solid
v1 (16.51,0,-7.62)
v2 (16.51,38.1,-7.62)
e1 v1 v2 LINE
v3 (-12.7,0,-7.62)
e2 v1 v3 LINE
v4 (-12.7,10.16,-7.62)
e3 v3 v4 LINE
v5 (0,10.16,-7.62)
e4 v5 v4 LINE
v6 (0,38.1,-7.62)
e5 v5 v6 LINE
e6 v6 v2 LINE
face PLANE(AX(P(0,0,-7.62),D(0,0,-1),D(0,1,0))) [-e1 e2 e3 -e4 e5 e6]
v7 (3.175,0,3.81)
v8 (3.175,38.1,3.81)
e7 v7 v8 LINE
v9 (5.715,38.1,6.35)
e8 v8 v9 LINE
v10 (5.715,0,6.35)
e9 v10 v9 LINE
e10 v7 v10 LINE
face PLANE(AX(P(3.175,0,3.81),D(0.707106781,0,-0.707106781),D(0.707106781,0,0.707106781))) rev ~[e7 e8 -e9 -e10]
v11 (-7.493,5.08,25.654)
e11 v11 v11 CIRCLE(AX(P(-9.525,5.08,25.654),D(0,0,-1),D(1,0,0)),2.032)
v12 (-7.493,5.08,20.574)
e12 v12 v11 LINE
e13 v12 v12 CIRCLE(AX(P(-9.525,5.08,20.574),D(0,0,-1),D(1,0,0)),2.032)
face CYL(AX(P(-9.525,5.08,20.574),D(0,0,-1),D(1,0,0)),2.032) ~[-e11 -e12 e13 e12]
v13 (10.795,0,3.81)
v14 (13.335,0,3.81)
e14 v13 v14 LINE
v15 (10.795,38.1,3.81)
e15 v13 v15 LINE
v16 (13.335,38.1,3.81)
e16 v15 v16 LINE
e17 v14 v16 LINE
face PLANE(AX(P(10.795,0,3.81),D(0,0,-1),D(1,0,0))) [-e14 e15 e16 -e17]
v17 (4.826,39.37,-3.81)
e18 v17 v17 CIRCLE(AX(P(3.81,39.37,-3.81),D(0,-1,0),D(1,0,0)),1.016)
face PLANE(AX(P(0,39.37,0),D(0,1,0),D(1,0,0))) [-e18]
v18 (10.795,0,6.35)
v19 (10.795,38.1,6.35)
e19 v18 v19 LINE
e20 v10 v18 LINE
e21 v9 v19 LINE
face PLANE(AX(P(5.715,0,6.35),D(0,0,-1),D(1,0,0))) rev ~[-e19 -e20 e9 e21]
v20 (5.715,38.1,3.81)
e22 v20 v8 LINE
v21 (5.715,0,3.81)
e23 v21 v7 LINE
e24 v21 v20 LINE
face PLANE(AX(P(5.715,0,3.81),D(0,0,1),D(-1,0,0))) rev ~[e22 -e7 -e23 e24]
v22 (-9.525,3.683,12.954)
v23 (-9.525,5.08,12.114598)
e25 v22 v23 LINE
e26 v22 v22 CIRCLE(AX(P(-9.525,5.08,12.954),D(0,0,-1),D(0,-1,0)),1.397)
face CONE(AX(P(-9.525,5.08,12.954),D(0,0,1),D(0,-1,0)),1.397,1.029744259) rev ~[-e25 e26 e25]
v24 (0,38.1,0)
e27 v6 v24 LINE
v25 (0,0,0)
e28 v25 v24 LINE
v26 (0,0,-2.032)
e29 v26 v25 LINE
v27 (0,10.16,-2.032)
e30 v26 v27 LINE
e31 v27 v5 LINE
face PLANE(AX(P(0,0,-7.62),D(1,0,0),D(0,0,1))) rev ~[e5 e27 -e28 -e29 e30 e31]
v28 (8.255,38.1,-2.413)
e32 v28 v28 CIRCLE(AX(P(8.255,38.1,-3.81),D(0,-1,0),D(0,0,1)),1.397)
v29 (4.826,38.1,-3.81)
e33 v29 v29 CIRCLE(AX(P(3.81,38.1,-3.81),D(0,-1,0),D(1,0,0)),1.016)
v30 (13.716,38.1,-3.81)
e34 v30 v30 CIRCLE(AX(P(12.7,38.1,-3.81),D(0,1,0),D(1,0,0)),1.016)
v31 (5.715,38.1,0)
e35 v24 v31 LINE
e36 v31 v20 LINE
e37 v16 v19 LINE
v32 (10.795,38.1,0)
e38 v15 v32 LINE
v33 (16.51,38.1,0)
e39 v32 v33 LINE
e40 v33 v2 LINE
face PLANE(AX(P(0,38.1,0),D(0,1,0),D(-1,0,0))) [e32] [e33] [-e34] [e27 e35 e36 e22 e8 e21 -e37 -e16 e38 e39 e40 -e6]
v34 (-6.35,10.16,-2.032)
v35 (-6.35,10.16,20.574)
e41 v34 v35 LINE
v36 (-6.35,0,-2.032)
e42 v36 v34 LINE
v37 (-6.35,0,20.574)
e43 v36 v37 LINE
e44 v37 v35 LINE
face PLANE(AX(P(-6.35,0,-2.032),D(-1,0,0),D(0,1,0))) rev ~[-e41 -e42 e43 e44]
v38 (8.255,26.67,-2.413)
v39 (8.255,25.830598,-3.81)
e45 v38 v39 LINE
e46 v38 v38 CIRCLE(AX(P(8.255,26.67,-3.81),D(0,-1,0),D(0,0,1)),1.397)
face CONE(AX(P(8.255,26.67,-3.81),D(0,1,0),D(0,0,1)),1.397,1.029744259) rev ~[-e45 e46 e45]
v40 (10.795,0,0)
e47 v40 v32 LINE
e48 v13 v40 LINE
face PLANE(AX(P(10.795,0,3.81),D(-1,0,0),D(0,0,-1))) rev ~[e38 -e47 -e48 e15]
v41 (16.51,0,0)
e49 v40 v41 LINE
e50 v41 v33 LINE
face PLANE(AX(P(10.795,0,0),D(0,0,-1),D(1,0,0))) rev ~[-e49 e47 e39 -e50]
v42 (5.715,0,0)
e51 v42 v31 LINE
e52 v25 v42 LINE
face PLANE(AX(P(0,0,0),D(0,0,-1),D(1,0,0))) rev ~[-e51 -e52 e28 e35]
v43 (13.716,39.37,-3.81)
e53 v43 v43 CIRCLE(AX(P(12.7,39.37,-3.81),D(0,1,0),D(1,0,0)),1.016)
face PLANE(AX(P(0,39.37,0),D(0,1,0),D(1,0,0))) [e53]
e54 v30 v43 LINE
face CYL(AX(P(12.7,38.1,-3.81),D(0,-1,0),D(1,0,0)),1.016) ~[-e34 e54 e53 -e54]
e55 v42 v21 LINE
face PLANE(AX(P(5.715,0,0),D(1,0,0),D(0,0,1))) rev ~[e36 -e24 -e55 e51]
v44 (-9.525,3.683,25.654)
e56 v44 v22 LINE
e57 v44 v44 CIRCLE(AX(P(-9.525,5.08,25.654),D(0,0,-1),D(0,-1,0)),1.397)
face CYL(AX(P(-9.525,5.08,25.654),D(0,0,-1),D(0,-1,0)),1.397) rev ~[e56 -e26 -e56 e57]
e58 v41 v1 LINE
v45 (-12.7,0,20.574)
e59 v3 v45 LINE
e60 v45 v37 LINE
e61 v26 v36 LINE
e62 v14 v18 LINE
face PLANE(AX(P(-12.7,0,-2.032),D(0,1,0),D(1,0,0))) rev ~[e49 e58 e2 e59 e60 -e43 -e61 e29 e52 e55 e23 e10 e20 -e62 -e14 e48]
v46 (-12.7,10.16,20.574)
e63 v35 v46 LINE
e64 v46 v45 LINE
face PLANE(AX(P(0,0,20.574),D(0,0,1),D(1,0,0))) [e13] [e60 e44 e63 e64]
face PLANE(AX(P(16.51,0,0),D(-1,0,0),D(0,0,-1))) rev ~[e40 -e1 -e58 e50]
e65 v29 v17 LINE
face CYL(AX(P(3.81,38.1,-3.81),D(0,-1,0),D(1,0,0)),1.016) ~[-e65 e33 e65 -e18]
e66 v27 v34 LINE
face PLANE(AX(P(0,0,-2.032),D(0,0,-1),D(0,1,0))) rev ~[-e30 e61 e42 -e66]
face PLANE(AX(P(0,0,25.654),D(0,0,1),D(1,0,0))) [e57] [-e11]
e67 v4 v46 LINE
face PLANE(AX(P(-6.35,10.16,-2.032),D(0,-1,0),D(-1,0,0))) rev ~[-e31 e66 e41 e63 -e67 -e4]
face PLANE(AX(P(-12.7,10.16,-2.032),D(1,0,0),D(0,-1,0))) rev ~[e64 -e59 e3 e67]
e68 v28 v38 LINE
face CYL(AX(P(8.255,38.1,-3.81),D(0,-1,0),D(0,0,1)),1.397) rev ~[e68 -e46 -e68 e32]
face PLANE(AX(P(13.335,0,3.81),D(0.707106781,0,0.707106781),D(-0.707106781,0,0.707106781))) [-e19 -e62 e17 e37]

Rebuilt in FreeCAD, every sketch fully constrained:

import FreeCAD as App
import Part
import Sketcher

V = App.Vector
Q = App.Units.Quantity

doc = App.newDocument("Part")
params = doc.addObject("Spreadsheet::Sheet", "Params")
for row, (alias, value) in enumerate([
    ("sketch1_width", "0.1 in"),
    ("sketch1_width2", "0.2 in"),
    ("sketch1_height", "0.3 in"),
    ("sketch1_height2", "0.05 in"),
    ("pad1_length", "1.5 in"),
    ("sketch2_diameter", "0.08 in"),
    ("pad2_length", "0.05 in"),
    ("sketch3_diameter", "0.08 in"),
    ("pad3_length", "0.05 in"),
    ("sketch4_diameter", "0.11 in"),
    ("hole_diameter", "0.11 in"),
    ("hole_depth", "0.45 in"),
    ("sketch5_width", "0.4 in"),
    ("sketch5_height", "0.22 in"),
    ("pad4_length", "0.5 in"),
    ("sketch6_height", "0.4 in"),
    ("sketch6_width", "0.25 in"),
    ("pad5_length", "0.89 in"),
    ("sketch7_diameter", "0.16 in"),
    ("pad6_length", "0.2 in"),
    ("sketch8_diameter", "0.11 in"),
    ("hole2_diameter", "0.11 in"),
    ("hole2_depth", "0.5 in"),
    ("sketch9_width", "0.2 in"),
    ("sketch9_height", "1.5 in"),
    ("pocket1_length", "0.05 in"),
], start=1):
    params.set(f"A{row}", alias)
    params.set(f"B{row}", "=" + value)
    params.setAlias(f"B{row}", alias)

body = doc.addObject("PartDesign::Body", "Body")

# Sketch on XZ plane
sketch1 = body.newObject("Sketcher::SketchObject", "Sketch")
sketch1.AttachmentSupport = (doc.getObject("XZ_Plane"), [""])
sketch1.MapMode = "FlatFace"
sketch1.addGeometry([
    Part.LineSegment(V(0, -7.6, 0), V(0, 0, 0)),  # 0
    Part.LineSegment(V(0, 0, 0), V(5.7, 0, 0)),  # 1
    Part.LineSegment(V(5.7, 0, 0), V(5.7, 3.8, 0)),  # 2
    Part.LineSegment(V(5.7, 3.8, 0), V(3.2, 3.8, 0)),  # 3
    Part.LineSegment(V(3.2, 3.8, 0), V(5.7, 6.3, 0)),  # 4
    Part.LineSegment(V(5.7, 6.3, 0), V(10.8, 6.3, 0)),  # 5
    Part.LineSegment(V(10.8, 6.3, 0), V(13.3, 3.8, 0)),  # 6
    Part.LineSegment(V(13.3, 3.8, 0), V(10.8, 3.8, 0)),  # 7
    Part.LineSegment(V(10.8, 3.8, 0), V(10.8, 0, 0)),  # 8
    Part.LineSegment(V(10.8, 0, 0), V(16.5, 0, 0)),  # 9
    Part.LineSegment(V(16.5, 0, 0), V(16.5, -7.6, 0)),  # 10
    Part.LineSegment(V(16.5, -7.6, 0), V(10.8, -7.6, 0)),  # 11
    Part.LineSegment(V(10.8, -7.6, 0), V(10.8, -8.9, 0)),  # 12
    Part.LineSegment(V(10.8, -8.9, 0), V(5.7, -8.9, 0)),  # 13
    Part.LineSegment(V(5.7, -8.9, 0), V(5.7, -7.6, 0)),  # 14
    Part.LineSegment(V(5.7, -7.6, 0), V(0, -7.6, 0)),  # 15
], False)
sketch1.addConstraint([
    Sketcher.Constraint("Coincident", 0, 2, 1, 1),
    Sketcher.Constraint("Coincident", 1, 2, 2, 1),
    Sketcher.Constraint("Coincident", 2, 2, 3, 1),
    Sketcher.Constraint("Coincident", 3, 2, 4, 1),
    Sketcher.Constraint("Coincident", 4, 2, 5, 1),
    Sketcher.Constraint("Coincident", 5, 2, 6, 1),
    Sketcher.Constraint("Coincident", 6, 2, 7, 1),
    Sketcher.Constraint("Coincident", 7, 2, 8, 1),
    Sketcher.Constraint("Coincident", 8, 2, 9, 1),
    Sketcher.Constraint("Coincident", 9, 2, 10, 1),
    Sketcher.Constraint("Coincident", 10, 2, 11, 1),
    Sketcher.Constraint("Coincident", 11, 2, 12, 1),
    Sketcher.Constraint("Coincident", 12, 2, 13, 1),
    Sketcher.Constraint("Coincident", 13, 2, 14, 1),
    Sketcher.Constraint("Coincident", 14, 2, 15, 1),
    Sketcher.Constraint("Coincident", 15, 2, 0, 1),
    Sketcher.Constraint("Vertical", 0),
    Sketcher.Constraint("Horizontal", 1),
    Sketcher.Constraint("Vertical", 2),
    Sketcher.Constraint("Horizontal", 3),
    Sketcher.Constraint("Horizontal", 5),
    Sketcher.Constraint("Horizontal", 7),
    Sketcher.Constraint("Vertical", 8),
    Sketcher.Constraint("Horizontal", 9),
    Sketcher.Constraint("Vertical", 10),
    Sketcher.Constraint("Horizontal", 11),
    Sketcher.Constraint("Vertical", 12),
    Sketcher.Constraint("Horizontal", 13),
    Sketcher.Constraint("Vertical", 14),
    Sketcher.Constraint("Horizontal", 15),
    Sketcher.Constraint("Coincident", 0, 2, -1, 1),
    Sketcher.Constraint("PointOnObject", 8, 2, -1),
    Sketcher.Constraint("Perpendicular", 4, 6),
    Sketcher.Constraint("Horizontal", 3, 2, 6, 2),
    Sketcher.Constraint("Horizontal", 11, 2, 14, 2),
    Sketcher.Constraint("Vertical", 2, 2, 4, 2),
    Sketcher.Constraint("Vertical", 5, 2, 7, 2),
    Sketcher.Constraint("Vertical", 8, 2, 11, 2),
    Sketcher.Constraint("Vertical", 4, 2, 13, 2),
    Sketcher.Constraint("Equal", 3, 7),
    Sketcher.Constraint("Equal", 1, 9),
    Sketcher.Constraint("DistanceX", 3, 2, 3, 1, Q("0.1 in")),
    Sketcher.Constraint("DistanceX", 5, 1, 5, 2, Q("0.2 in")),
    Sketcher.Constraint("DistanceY", 0, 1, 0, 2, Q("0.3 in")),
    Sketcher.Constraint("DistanceY", 12, 2, 12, 1, Q("0.05 in")),
    Sketcher.Constraint("DistanceY", -1, 1, 4, 2, Q("0.25 in")),
    Sketcher.Constraint("DistanceX", -1, 1, 9, 2, Q("0.65 in")),
])
sketch1.setExpression("Constraints[41]", "Params.sketch1_width")
sketch1.setExpression("Constraints[42]", "Params.sketch1_width2")
sketch1.setExpression("Constraints[43]", "Params.sketch1_height")
sketch1.setExpression("Constraints[44]", "Params.sketch1_height2")
pad1 = body.newObject("PartDesign::Pad", "Pad")
pad1.Profile = sketch1
pad1.setExpression("Length", "Params.pad1_length")
pad1.Reversed = True

# Sketch on XZ plane
sketch2 = body.newObject("Sketcher::SketchObject", "Sketch001")
sketch2.AttachmentSupport = (doc.getObject("XZ_Plane"), [""])
sketch2.MapMode = "FlatFace"
sketch2.AttachmentOffset = App.Placement(V(0, 0, -1.5 * 25.4), App.Rotation())
sketch2.addGeometry(Part.Circle(V(12.7, -3.8, 0), V(0, 0, 1), 1), False)
sketch2.addConstraint([
    Sketcher.Constraint("Diameter", 0, Q("0.08 in")),
    Sketcher.Constraint("DistanceY", 0, 3, -1, 1, Q("0.15 in")),
    Sketcher.Constraint("DistanceX", -1, 1, 0, 3, Q("0.5 in")),
])
sketch2.setExpression("Constraints[0]", "Params.sketch2_diameter")
pad2 = body.newObject("PartDesign::Pad", "Pad001")
pad2.Profile = sketch2
pad2.setExpression("Length", "Params.pad2_length")
pad2.Reversed = True

# Sketch on XZ plane
sketch3 = body.newObject("Sketcher::SketchObject", "Sketch002")
sketch3.AttachmentSupport = (doc.getObject("XZ_Plane"), [""])
sketch3.MapMode = "FlatFace"
sketch3.AttachmentOffset = App.Placement(V(0, 0, -1.5 * 25.4), App.Rotation())
sketch3.addGeometry(Part.Circle(V(3.8, -3.8, 0), V(0, 0, 1), 1), False)
sketch3.addConstraint([
    Sketcher.Constraint("Diameter", 0, Q("0.08 in")),
    Sketcher.Constraint("DistanceX", -1, 1, 0, 3, Q("0.15 in")),
    Sketcher.Constraint("DistanceY", 0, 3, -1, 1, Q("0.15 in")),
])
sketch3.setExpression("Constraints[0]", "Params.sketch3_diameter")
pad3 = body.newObject("PartDesign::Pad", "Pad002")
pad3.Profile = sketch3
pad3.setExpression("Length", "Params.pad3_length")
pad3.Reversed = True

# Sketch on XZ plane
sketch4 = body.newObject("Sketcher::SketchObject", "Sketch003")
sketch4.AttachmentSupport = (doc.getObject("XZ_Plane"), [""])
sketch4.MapMode = "FlatFace"
sketch4.AttachmentOffset = App.Placement(V(0, 0, -1.5 * 25.4), App.Rotation())
sketch4.addGeometry([
    Part.Circle(V(8.3, -3.8, 0), V(0, 0, 1), 1.4),
    Part.Circle(V(8.3, -3.8, 0), V(0, 0, 1), 1.4),
], False)
sketch4.addConstraint([
    Sketcher.Constraint("Coincident", 1, 3, 0, 3),
    Sketcher.Constraint("Equal", 0, 1),
    Sketcher.Constraint("Diameter", 0, Q("0.11 in")),
    Sketcher.Constraint("DistanceY", 0, 3, -1, 1, Q("0.15 in")),
    Sketcher.Constraint("DistanceX", -1, 1, 0, 3, Q("0.325 in")),
])
sketch4.setExpression("Constraints[2]", "Params.sketch4_diameter")
doc.recompute()
hole = body.newObject("PartDesign::Hole", "Hole")
hole.Profile = sketch4
hole.ThreadType = "None"
hole.setExpression("Diameter", "Params.hole_diameter")
hole.DepthType = "Dimension"
hole.setExpression("Depth", "Params.hole_depth")
hole.DrillPoint = "Angled"
hole.DrillPointAngle = 118
hole.Reversed = True

# Sketch on YZ plane
sketch5 = body.newObject("Sketcher::SketchObject", "Sketch004")
sketch5.AttachmentSupport = (doc.getObject("YZ_Plane"), [""])
sketch5.MapMode = "FlatFace"
sketch5.addGeometry([
    Part.LineSegment(V(10, -8, 0), V(0, -8, 0)),
    Part.LineSegment(V(0, -8, 0), V(0, -2, 0)),
    Part.LineSegment(V(0, -2, 0), V(10, -2, 0)),
    Part.LineSegment(V(10, -2, 0), V(10, -8, 0)),
], False)
sketch5.addConstraint([
    Sketcher.Constraint("Coincident", 0, 2, 1, 1),
    Sketcher.Constraint("Coincident", 1, 2, 2, 1),
    Sketcher.Constraint("Coincident", 2, 2, 3, 1),
    Sketcher.Constraint("Coincident", 3, 2, 0, 1),
    Sketcher.Constraint("Horizontal", 0),
    Sketcher.Constraint("Vertical", 1),
    Sketcher.Constraint("Horizontal", 2),
    Sketcher.Constraint("Vertical", 3),
    Sketcher.Constraint("PointOnObject", 0, 2, -2),
    Sketcher.Constraint("DistanceX", 0, 2, 0, 1, Q("0.4 in")),
    Sketcher.Constraint("DistanceY", 1, 1, 1, 2, Q("0.22 in")),
    Sketcher.Constraint("DistanceY", 0, 2, -1, 1, Q("0.3 in")),
])
sketch5.setExpression("Constraints[9]", "Params.sketch5_width")
sketch5.setExpression("Constraints[10]", "Params.sketch5_height")
pad4 = body.newObject("PartDesign::Pad", "Pad003")
pad4.Profile = sketch5
pad4.setExpression("Length", "Params.pad4_length")
pad4.Reversed = True

# Sketch on XY plane
sketch6 = body.newObject("Sketcher::SketchObject", "Sketch005")
sketch6.AttachmentSupport = (doc.getObject("XY_Plane"), [""])
sketch6.MapMode = "FlatFace"
sketch6.AttachmentOffset = App.Placement(V(0, 0, -0.08 * 25.4), App.Rotation())
sketch6.addGeometry([
    Part.LineSegment(V(-6, 10, 0), V(-13, 10, 0)),
    Part.LineSegment(V(-13, 10, 0), V(-13, 0, 0)),
    Part.LineSegment(V(-13, 0, 0), V(-6, 0, 0)),
    Part.LineSegment(V(-6, 0, 0), V(-6, 10, 0)),
], False)
sketch6.addConstraint([
    Sketcher.Constraint("Coincident", 0, 2, 1, 1),
    Sketcher.Constraint("Coincident", 1, 2, 2, 1),
    Sketcher.Constraint("Coincident", 2, 2, 3, 1),
    Sketcher.Constraint("Coincident", 3, 2, 0, 1),
    Sketcher.Constraint("Horizontal", 0),
    Sketcher.Constraint("Vertical", 1),
    Sketcher.Constraint("Horizontal", 2),
    Sketcher.Constraint("Vertical", 3),
    Sketcher.Constraint("PointOnObject", 1, 2, -1),
    Sketcher.Constraint("DistanceY", 1, 2, 1, 1, Q("0.4 in")),
    Sketcher.Constraint("DistanceX", 0, 2, 0, 1, Q("0.25 in")),
    Sketcher.Constraint("DistanceX", 2, 2, -1, 1, Q("0.25 in")),
])
sketch6.setExpression("Constraints[9]", "Params.sketch6_height")
sketch6.setExpression("Constraints[10]", "Params.sketch6_width")
pad5 = body.newObject("PartDesign::Pad", "Pad004")
pad5.Profile = sketch6
pad5.setExpression("Length", "Params.pad5_length")

# Sketch on XY plane
sketch7 = body.newObject("Sketcher::SketchObject", "Sketch006")
sketch7.AttachmentSupport = (doc.getObject("XY_Plane"), [""])
sketch7.MapMode = "FlatFace"
sketch7.AttachmentOffset = App.Placement(V(0, 0, 0.81 * 25.4), App.Rotation())
sketch7.addGeometry(Part.Circle(V(-9.5, 5.1, 0), V(0, 0, 1), 2), False)
sketch7.addConstraint([
    Sketcher.Constraint("Diameter", 0, Q("0.16 in")),
    Sketcher.Constraint("DistanceY", -1, 1, 0, 3, Q("0.2 in")),
    Sketcher.Constraint("DistanceX", 0, 3, -1, 1, Q("0.375 in")),
])
sketch7.setExpression("Constraints[0]", "Params.sketch7_diameter")
pad6 = body.newObject("PartDesign::Pad", "Pad005")
pad6.Profile = sketch7
pad6.setExpression("Length", "Params.pad6_length")

# Sketch on XY plane
sketch8 = body.newObject("Sketcher::SketchObject", "Sketch007")
sketch8.AttachmentSupport = (doc.getObject("XY_Plane"), [""])
sketch8.MapMode = "FlatFace"
sketch8.AttachmentOffset = App.Placement(V(0, 0, 1.01 * 25.4), App.Rotation())
sketch8.addGeometry(Part.Circle(V(-9.5, 5.1, 0), V(0, 0, 1), 1.4), False)
sketch8.addConstraint([
    Sketcher.Constraint("Diameter", 0, Q("0.11 in")),
    Sketcher.Constraint("DistanceY", -1, 1, 0, 3, Q("0.2 in")),
    Sketcher.Constraint("DistanceX", 0, 3, -1, 1, Q("0.375 in")),
])
sketch8.setExpression("Constraints[0]", "Params.sketch8_diameter")
doc.recompute()
hole2 = body.newObject("PartDesign::Hole", "Hole001")
hole2.Profile = sketch8
hole2.ThreadType = "None"
hole2.setExpression("Diameter", "Params.hole2_diameter")
hole2.DepthType = "Dimension"
hole2.setExpression("Depth", "Params.hole2_depth")
hole2.DrillPoint = "Angled"
hole2.DrillPointAngle = 118

# Sketch on XY plane
sketch9 = body.newObject("Sketcher::SketchObject", "Sketch008")
sketch9.AttachmentSupport = (doc.getObject("XY_Plane"), [""])
sketch9.MapMode = "FlatFace"
sketch9.AttachmentOffset = App.Placement(V(0, 0, -0.35 * 25.4), App.Rotation())
sketch9.addGeometry([
    Part.LineSegment(V(11, 38, 0), V(11, 0, 0)),
    Part.LineSegment(V(11, 0, 0), V(6, 0, 0)),
    Part.LineSegment(V(6, 0, 0), V(6, 38, 0)),
    Part.LineSegment(V(6, 38, 0), V(11, 38, 0)),
], False)
sketch9.addConstraint([
    Sketcher.Constraint("Coincident", 0, 2, 1, 1),
    Sketcher.Constraint("Coincident", 1, 2, 2, 1),
    Sketcher.Constraint("Coincident", 2, 2, 3, 1),
    Sketcher.Constraint("Coincident", 3, 2, 0, 1),
    Sketcher.Constraint("Vertical", 0),
    Sketcher.Constraint("Horizontal", 1),
    Sketcher.Constraint("Vertical", 2),
    Sketcher.Constraint("Horizontal", 3),
    Sketcher.Constraint("PointOnObject", 0, 2, -1),
    Sketcher.Constraint("DistanceX", 1, 2, 1, 1, Q("0.2 in")),
    Sketcher.Constraint("DistanceY", 0, 2, 0, 1, Q("1.5 in")),
    Sketcher.Constraint("DistanceX", -1, 1, 0, 2, Q("0.425 in")),
])
sketch9.setExpression("Constraints[9]", "Params.sketch9_width")
sketch9.setExpression("Constraints[10]", "Params.sketch9_height")
pocket1 = body.newObject("PartDesign::Pocket", "Pocket")
pocket1.Profile = sketch9
pocket1.setExpression("Length", "Params.pocket1_length")
pocket1.Reversed = True

doc.recompute()
